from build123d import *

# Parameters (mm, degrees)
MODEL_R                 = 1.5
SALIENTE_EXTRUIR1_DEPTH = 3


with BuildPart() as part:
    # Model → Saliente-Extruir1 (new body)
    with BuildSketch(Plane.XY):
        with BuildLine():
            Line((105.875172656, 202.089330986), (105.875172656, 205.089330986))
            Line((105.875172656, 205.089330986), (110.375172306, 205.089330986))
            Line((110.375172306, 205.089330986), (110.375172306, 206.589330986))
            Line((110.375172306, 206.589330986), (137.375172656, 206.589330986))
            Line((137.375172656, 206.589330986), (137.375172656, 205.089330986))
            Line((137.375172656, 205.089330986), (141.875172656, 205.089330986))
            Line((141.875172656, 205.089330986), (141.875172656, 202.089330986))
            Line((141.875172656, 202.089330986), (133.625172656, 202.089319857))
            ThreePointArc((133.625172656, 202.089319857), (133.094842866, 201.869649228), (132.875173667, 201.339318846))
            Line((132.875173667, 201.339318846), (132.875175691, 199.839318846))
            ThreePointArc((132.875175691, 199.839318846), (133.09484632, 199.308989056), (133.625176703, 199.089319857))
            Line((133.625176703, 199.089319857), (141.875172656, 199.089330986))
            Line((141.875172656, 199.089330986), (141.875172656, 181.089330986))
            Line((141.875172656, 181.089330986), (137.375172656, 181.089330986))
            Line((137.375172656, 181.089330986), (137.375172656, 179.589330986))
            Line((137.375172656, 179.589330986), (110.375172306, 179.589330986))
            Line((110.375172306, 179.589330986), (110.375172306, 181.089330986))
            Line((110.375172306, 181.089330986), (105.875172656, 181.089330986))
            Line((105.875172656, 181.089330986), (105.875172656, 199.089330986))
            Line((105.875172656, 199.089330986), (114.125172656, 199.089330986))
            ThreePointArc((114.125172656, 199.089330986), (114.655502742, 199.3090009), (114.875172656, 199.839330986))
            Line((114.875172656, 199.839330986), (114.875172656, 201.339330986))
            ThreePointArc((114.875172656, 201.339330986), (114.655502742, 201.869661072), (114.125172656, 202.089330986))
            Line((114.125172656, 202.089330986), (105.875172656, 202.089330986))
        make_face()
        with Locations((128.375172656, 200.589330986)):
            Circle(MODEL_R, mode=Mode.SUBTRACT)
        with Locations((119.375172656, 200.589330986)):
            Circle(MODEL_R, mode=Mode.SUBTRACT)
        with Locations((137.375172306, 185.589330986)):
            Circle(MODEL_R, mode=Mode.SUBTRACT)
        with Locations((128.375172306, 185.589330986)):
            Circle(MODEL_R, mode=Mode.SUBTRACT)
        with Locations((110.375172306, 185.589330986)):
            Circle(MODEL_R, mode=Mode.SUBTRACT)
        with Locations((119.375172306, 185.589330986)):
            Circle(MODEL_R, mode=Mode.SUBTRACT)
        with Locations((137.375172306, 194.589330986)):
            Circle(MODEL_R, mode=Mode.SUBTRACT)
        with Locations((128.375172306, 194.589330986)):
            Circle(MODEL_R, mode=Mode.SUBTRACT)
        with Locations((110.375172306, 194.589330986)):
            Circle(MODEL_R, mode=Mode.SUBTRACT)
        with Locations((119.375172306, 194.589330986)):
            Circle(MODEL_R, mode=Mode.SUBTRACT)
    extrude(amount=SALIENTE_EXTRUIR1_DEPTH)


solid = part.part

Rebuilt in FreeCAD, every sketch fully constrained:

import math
import FreeCAD as App
import Part
import Sketcher

V = App.Vector
Q = App.Units.Quantity

doc = App.newDocument("Part")
body = doc.addObject("PartDesign::Body", "Body")

# Sketch on XY plane
sketch1 = body.newObject("Sketcher::SketchObject", "Sketch")
sketch1.AttachmentSupport = (doc.getObject("XY_Plane"), [""])
sketch1.MapMode = "FlatFace"
sketch1.addGeometry(Part.LineSegment(V(105.9, 205.1, 0), V(105.9, 202.1, 0)), False)
sketch1.addGeometry(Part.LineSegment(V(105.9, 202.1, 0), V(114.1, 202.1, 0)), False)
sketch1.addGeometry(Part.ArcOfCircle(Part.Circle(V(114.1, 201.3, 0), V(0, 0, 1), 0.8), math.radians(0), math.radians(90)), False)
sketch1.addGeometry(Part.LineSegment(V(114.9, 201.3, 0), V(114.9, 199.8, 0)), False)
sketch1.addGeometry(Part.ArcOfCircle(Part.Circle(V(114.1, 199.8, 0), V(0, 0, 1), 0.8), math.radians(-90), math.radians(0)), False)
sketch1.addGeometry(Part.LineSegment(V(114.1, 199.1, 0), V(105.9, 199.1, 0)), False)
sketch1.addGeometry(Part.LineSegment(V(105.9, 199.1, 0), V(105.9, 181.1, 0)), False)
sketch1.addGeometry(Part.LineSegment(V(105.9, 181.1, 0), V(110.4, 181.1, 0)), False)
sketch1.addGeometry(Part.LineSegment(V(110.4, 181.1, 0), V(110.4, 179.6, 0)), False)
sketch1.addGeometry(Part.LineSegment(V(110.4, 179.6, 0), V(137.4, 179.6, 0)), False)
sketch1.addGeometry(Part.LineSegment(V(137.4, 179.6, 0), V(137.4, 181.1, 0)), False)
sketch1.addGeometry(Part.LineSegment(V(137.4, 181.1, 0), V(141.9, 181.1, 0)), False)
sketch1.addGeometry(Part.LineSegment(V(141.9, 181.1, 0), V(141.9, 199.1, 0)), False)
sketch1.addGeometry(Part.LineSegment(V(141.9, 199.1, 0), V(133.6, 199.1, 0)), False)
sketch1.addGeometry(Part.ArcOfCircle(Part.Circle(V(133.6, 199.8, 0), V(0, 0, 1), 0.8), math.radians(-180), math.radians(-90)), False)
sketch1.addGeometry(Part.LineSegment(V(132.9, 199.8, 0), V(132.9, 201.3, 0)), False)
sketch1.addGeometry(Part.ArcOfCircle(Part.Circle(V(133.6, 201.3, 0), V(0, 0, 1), 0.8), math.radians(90), math.radians(180)), False)
sketch1.addGeometry(Part.LineSegment(V(133.6, 202.1, 0), V(141.9, 202.1, 0)), False)
sketch1.addGeometry(Part.LineSegment(V(141.9, 202.1, 0), V(141.9, 205.1, 0)), False)
sketch1.addGeometry(Part.LineSegment(V(141.9, 205.1, 0), V(137.4, 205.1, 0)), False)
sketch1.addGeometry(Part.LineSegment(V(137.4, 205.1, 0), V(137.4, 206.6, 0)), False)
sketch1.addGeometry(Part.LineSegment(V(137.4, 206.6, 0), V(110.4, 206.6, 0)), False)
sketch1.addGeometry(Part.LineSegment(V(110.4, 206.6, 0), V(110.4, 205.1, 0)), False)
sketch1.addGeometry(Part.LineSegment(V(110.4, 205.1, 0), V(105.9, 205.1, 0)), False)
sketch1.addGeometry(Part.Circle(V(137.4, 185.6, 0), V(0, 0, 1), 1.5), False)
sketch1.addGeometry(Part.Circle(V(128.4, 185.6, 0), V(0, 0, 1), 1.5), False)
sketch1.addGeometry(Part.Circle(V(119.4, 185.6, 0), V(0, 0, 1), 1.5), False)
sketch1.addGeometry(Part.Circle(V(110.4, 185.6, 0), V(0, 0, 1), 1.5), False)
sketch1.addGeometry(Part.Circle(V(137.4, 194.6, 0), V(0, 0, 1), 1.5), False)
sketch1.addGeometry(Part.Circle(V(128.4, 194.6, 0), V(0, 0, 1), 1.5), False)
sketch1.addGeometry(Part.Circle(V(128.4, 200.6, 0), V(0, 0, 1), 1.5), False)
sketch1.addGeometry(Part.Circle(V(119.4, 194.6, 0), V(0, 0, 1), 1.5), False)
sketch1.addGeometry(Part.Circle(V(110.4, 194.6, 0), V(0, 0, 1), 1.5), False)
sketch1.addGeometry(Part.Circle(V(119.4, 200.6, 0), V(0, 0, 1), 1.5), False)
sketch1.addConstraint(Sketcher.Constraint("Coincident", 0, 2, 1, 1))
sketch1.addConstraint(Sketcher.Constraint("Tangent", 1, 2, 2, 2))
sketch1.addConstraint(Sketcher.Constraint("Tangent", 2, 1, 3, 1))
sketch1.addConstraint(Sketcher.Constraint("Tangent", 3, 2, 4, 2))
sketch1.addConstraint(Sketcher.Constraint("Tangent", 4, 1, 5, 1))
sketch1.addConstraint(Sketcher.Constraint("Coincident", 5, 2, 6, 1))
sketch1.addConstraint(Sketcher.Constraint("Coincident", 6, 2, 7, 1))
sketch1.addConstraint(Sketcher.Constraint("Coincident", 7, 2, 8, 1))
sketch1.addConstraint(Sketcher.Constraint("Coincident", 8, 2, 9, 1))
sketch1.addConstraint(Sketcher.Constraint("Coincident", 9, 2, 10, 1))
sketch1.addConstraint(Sketcher.Constraint("Coincident", 10, 2, 11, 1))
sketch1.addConstraint(Sketcher.Constraint("Coincident", 11, 2, 12, 1))
sketch1.addConstraint(Sketcher.Constraint("Coincident", 12, 2, 13, 1))
sketch1.addConstraint(Sketcher.Constraint("Tangent", 13, 2, 14, 2))
sketch1.addConstraint(Sketcher.Constraint("Tangent", 14, 1, 15, 1))
sketch1.addConstraint(Sketcher.Constraint("Tangent", 15, 2, 16, 2))
sketch1.addConstraint(Sketcher.Constraint("Tangent", 16, 1, 17, 1))
sketch1.addConstraint(Sketcher.Constraint("Coincident", 17, 2, 18, 1))
sketch1.addConstraint(Sketcher.Constraint("Coincident", 18, 2, 19, 1))
sketch1.addConstraint(Sketcher.Constraint("Coincident", 19, 2, 20, 1))
sketch1.addConstraint(Sketcher.Constraint("Coincident", 20, 2, 21, 1))
sketch1.addConstraint(Sketcher.Constraint("Coincident", 21, 2, 22, 1))
sketch1.addConstraint(Sketcher.Constraint("Coincident", 22, 2, 23, 1))
sketch1.addConstraint(Sketcher.Constraint("Coincident", 23, 2, 0, 1))
sketch1.addConstraint(Sketcher.Constraint("Vertical", 0))
sketch1.addConstraint(Sketcher.Constraint("Horizontal", 1))
sketch1.addConstraint(Sketcher.Constraint("Vertical", 3))
sketch1.addConstraint(Sketcher.Constraint("Horizontal", 5))
sketch1.addConstraint(Sketcher.Constraint("Vertical", 6))
sketch1.addConstraint(Sketcher.Constraint("Horizontal", 7))
sketch1.addConstraint(Sketcher.Constraint("Vertical", 8))
sketch1.addConstraint(Sketcher.Constraint("Horizontal", 9))
sketch1.addConstraint(Sketcher.Constraint("Vertical", 10))
sketch1.addConstraint(Sketcher.Constraint("Horizontal", 11))
sketch1.addConstraint(Sketcher.Constraint("Vertical", 12))
sketch1.addConstraint(Sketcher.Constraint("Vertical", 18))
sketch1.addConstraint(Sketcher.Constraint("Horizontal", 19))
sketch1.addConstraint(Sketcher.Constraint("Vertical", 20))
sketch1.addConstraint(Sketcher.Constraint("Horizontal", 21))
sketch1.addConstraint(Sketcher.Constraint("Vertical", 22))
sketch1.addConstraint(Sketcher.Constraint("Horizontal", 23))
sketch1.addConstraint(Sketcher.Constraint("Equal", 2, 4))
sketch1.addConstraint(Sketcher.Constraint("Equal", 4, 14))
sketch1.addConstraint(Sketcher.Constraint("Equal", 14, 16))
sketch1.addConstraint(Sketcher.Constraint("Equal", 24, 25))
sketch1.addConstraint(Sketcher.Constraint("Equal", 25, 26))
sketch1.addConstraint(Sketcher.Constraint("Equal", 26, 27))
sketch1.addConstraint(Sketcher.Constraint("Equal", 27, 28))
sketch1.addConstraint(Sketcher.Constraint("Equal", 28, 29))
sketch1.addConstraint(Sketcher.Constraint("Equal", 29, 30))
sketch1.addConstraint(Sketcher.Constraint("Equal", 30, 31))
sketch1.addConstraint(Sketcher.Constraint("Equal", 31, 32))
sketch1.addConstraint(Sketcher.Constraint("Equal", 32, 33))
sketch1.addConstraint(Sketcher.Constraint("Perpendicular", 13, 15))
sketch1.addConstraint(Sketcher.Constraint("Perpendicular", 15, 17))
sketch1.addConstraint(Sketcher.Constraint("Horizontal", 24, 3, 25, 3))
sketch1.addConstraint(Sketcher.Constraint("Horizontal", 25, 3, 26, 3))
sketch1.addConstraint(Sketcher.Constraint("Horizontal", 26, 3, 27, 3))
sketch1.addConstraint(Sketcher.Constraint("Horizontal", 28, 3, 29, 3))
sketch1.addConstraint(Sketcher.Constraint("Horizontal", 29, 3, 31, 3))
sketch1.addConstraint(Sketcher.Constraint("Horizontal", 31, 3, 32, 3))
sketch1.addConstraint(Sketcher.Constraint("Horizontal", 30, 3, 33, 3))
sketch1.addConstraint(Sketcher.Constraint("Horizontal", 7, 2, 10, 2))
sketch1.addConstraint(Sketcher.Constraint("Horizontal", 5, 2, 12, 2))
sketch1.addConstraint(Sketcher.Constraint("Horizontal", 16, 3, 15, 2))
sketch1.addConstraint(Sketcher.Constraint("Horizontal", 1, 2, 17, 2))
sketch1.addConstraint(Sketcher.Constraint("Horizontal", 19, 2, 22, 2))
sketch1.addConstraint(Sketcher.Constraint("Vertical", 24, 3, 28, 3))
sketch1.addConstraint(Sketcher.Constraint("Vertical", 25, 3, 29, 3))
sketch1.addConstraint(Sketcher.Constraint("Vertical", 29, 3, 30, 3))
sketch1.addConstraint(Sketcher.Constraint("Vertical", 26, 3, 31, 3))
sketch1.addConstraint(Sketcher.Constraint("Vertical", 27, 3, 32, 3))
sketch1.addConstraint(Sketcher.Constraint("Vertical", 31, 3, 33, 3))
sketch1.addConstraint(Sketcher.Constraint("Vertical", 0, 2, 5, 2))
sketch1.addConstraint(Sketcher.Constraint("Vertical", 32, 3, 7, 2))
sketch1.addConstraint(Sketcher.Constraint("Vertical", 28, 3, 9, 2))
sketch1.addConstraint(Sketcher.Constraint("Vertical", 12, 2, 17, 2))
sketch1.addConstraint(Sketcher.Constraint("Vertical", 10, 2, 19, 2))
sketch1.addConstraint(Sketcher.Constraint("Vertical", 8, 2, 21, 2))
sketch1.addConstraint(Sketcher.Constraint("Equal", 7, 11))
sketch1.addConstraint(Sketcher.Constraint("Equal", 3, 8))
sketch1.addConstraint(Sketcher.Constraint("Equal", 10, 20))
sketch1.addConstraint(Sketcher.Constraint("Diameter", 24, Q("3 mm")))
sketch1.addConstraint(Sketcher.Constraint("DistanceX", 9, 1, 9, 2, Q("27 mm")))
sketch1.addConstraint(Sketcher.Constraint("DistanceY", 0, 2, 0, 1, Q("3 mm")))
sketch1.addConstraint(Sketcher.Constraint("DistanceY", 6, 2, 6, 1, Q("18 mm")))
sketch1.addConstraint(Sketcher.Constraint("Radius", 2, Q("0.75 mm")))
sketch1.addConstraint(Sketcher.Constraint("DistanceX", 7, 1, 7, 2, Q("4.5 mm")))
sketch1.addConstraint(Sketcher.Constraint("DistanceY", 3, 2, 3, 1, Q("1.5 mm")))
sketch1.addConstraint(Sketcher.Constraint("DistanceX", 25, 3, 24, 3, Q("9 mm")))
sketch1.addConstraint(Sketcher.Constraint("DistanceX", 26, 3, 25, 3, Q("9 mm")))
sketch1.addConstraint(Sketcher.Constraint("DistanceY", 24, 3, 28, 3, Q("9 mm")))
sketch1.addConstraint(Sketcher.Constraint("DistanceY", 29, 3, 30, 3, Q("6 mm")))
sketch1.addConstraint(Sketcher.Constraint("DistanceY", 8, 2, 27, 3, Q("6 mm")))
sketch1.addConstraint(Sketcher.Constraint("DistanceX", 15, 2, 18, 2, Q("8.999999 mm")))
sketch1.addConstraint(Sketcher.Constraint("DistanceX", 1, 1, 1, 2, Q("8.25 mm")))
sketch1.addConstraint(Sketcher.Constraint("DistanceY", -1, 1, 2, 3, Q("201.339331 mm")))
sketch1.addConstraint(Sketcher.Constraint("DistanceX", -1, 1, 2, 3, Q("114.125173 mm")))
pad1 = body.newObject("PartDesign::Pad", "Pad")
pad1.Profile = sketch1
pad1.Length = 3

doc.recompute()
